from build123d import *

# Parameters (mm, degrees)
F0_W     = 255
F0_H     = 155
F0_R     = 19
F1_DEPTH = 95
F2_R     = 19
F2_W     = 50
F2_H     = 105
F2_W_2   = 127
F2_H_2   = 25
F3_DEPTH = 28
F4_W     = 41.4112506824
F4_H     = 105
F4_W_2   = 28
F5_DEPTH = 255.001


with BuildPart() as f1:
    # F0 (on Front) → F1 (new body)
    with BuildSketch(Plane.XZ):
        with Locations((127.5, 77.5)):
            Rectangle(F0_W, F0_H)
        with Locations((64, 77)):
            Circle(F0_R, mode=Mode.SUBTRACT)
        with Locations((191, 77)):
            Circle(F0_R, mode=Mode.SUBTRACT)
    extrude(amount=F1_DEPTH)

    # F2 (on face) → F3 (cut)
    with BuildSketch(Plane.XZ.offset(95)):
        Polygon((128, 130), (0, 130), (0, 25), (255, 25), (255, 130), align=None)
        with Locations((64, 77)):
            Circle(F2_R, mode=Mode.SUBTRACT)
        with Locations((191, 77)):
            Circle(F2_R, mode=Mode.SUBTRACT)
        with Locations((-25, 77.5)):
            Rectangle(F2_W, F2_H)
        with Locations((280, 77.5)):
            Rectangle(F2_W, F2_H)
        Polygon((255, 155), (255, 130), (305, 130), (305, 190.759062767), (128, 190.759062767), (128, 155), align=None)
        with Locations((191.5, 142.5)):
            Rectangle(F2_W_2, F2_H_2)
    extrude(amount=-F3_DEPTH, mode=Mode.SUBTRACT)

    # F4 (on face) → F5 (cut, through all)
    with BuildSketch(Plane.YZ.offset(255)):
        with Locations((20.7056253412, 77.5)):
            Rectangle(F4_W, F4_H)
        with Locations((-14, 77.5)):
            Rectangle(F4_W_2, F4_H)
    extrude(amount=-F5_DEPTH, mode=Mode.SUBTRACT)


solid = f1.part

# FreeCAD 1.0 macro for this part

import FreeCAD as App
import Part
import Sketcher

V = App.Vector

doc = App.newDocument("Part")
body = doc.addObject("PartDesign::Body", "Body")

# Sketch on XZ plane
sketch1 = body.newObject("Sketcher::SketchObject", "Sketch")
sketch1.AttachmentSupport = (doc.getObject("XZ_Plane"), [""])
sketch1.MapMode = "FlatFace"
sketch1.addGeometry(Part.LineSegment(V(0, 155, 0), V(0, 0, 0)), False)
sketch1.addGeometry(Part.LineSegment(V(0, 0, 0), V(255, 0, 0)), False)
sketch1.addGeometry(Part.LineSegment(V(255, 0, 0), V(255, 155, 0)), False)
sketch1.addGeometry(Part.LineSegment(V(255, 155, 0), V(0, 155, 0)), False)
sketch1.addGeometry(Part.Circle(V(64, 77, 0), V(0, 0, 1), 19), False)
sketch1.addGeometry(Part.Circle(V(191, 77, 0), V(0, 0, 1), 19), False)
sketch1.addConstraint(Sketcher.Constraint("Coincident", 0, 2, 1, 1))
sketch1.addConstraint(Sketcher.Constraint("Coincident", 1, 2, 2, 1))
sketch1.addConstraint(Sketcher.Constraint("Coincident", 2, 2, 3, 1))
sketch1.addConstraint(Sketcher.Constraint("Coincident", 3, 2, 0, 1))
sketch1.addConstraint(Sketcher.Constraint("Vertical", 0))
sketch1.addConstraint(Sketcher.Constraint("Horizontal", 1))
sketch1.addConstraint(Sketcher.Constraint("Vertical", 2))
sketch1.addConstraint(Sketcher.Constraint("Horizontal", 3))
sketch1.addConstraint(Sketcher.Constraint("Coincident", 0, 2, -1, 1))
sketch1.addConstraint(Sketcher.Constraint("Equal", 4, 5))
sketch1.addConstraint(Sketcher.Constraint("Horizontal", 4, 3, 5, 3))
sketch1.addConstraint(Sketcher.Constraint("Diameter", 4, 38.0))
sketch1.addConstraint(Sketcher.Constraint("DistanceX", 1, 1, 1, 2, 255.0))
sketch1.addConstraint(Sketcher.Constraint("DistanceY", 0, 2, 0, 1, 155.0))
sketch1.addConstraint(Sketcher.Constraint("DistanceX", -1, 1, 4, 3, 64.0))
sketch1.addConstraint(Sketcher.Constraint("DistanceY", -1, 1, 4, 3, 77.0))
sketch1.addConstraint(Sketcher.Constraint("DistanceX", -1, 1, 5, 3, 191.0))
pad1 = body.newObject("PartDesign::Pad", "Pad")
pad1.Profile = sketch1
pad1.Length = 95

# Sketch on XZ plane
sketch2 = body.newObject("Sketcher::SketchObject", "Sketch001")
sketch2.AttachmentSupport = (doc.getObject("XZ_Plane"), [""])
sketch2.MapMode = "FlatFace"
sketch2.AttachmentOffset = App.Placement(V(0, 0, 95), App.Rotation())
sketch2.addGeometry(Part.LineSegment(V(-50, 130, 0), V(-50, 25, 0)), False)
sketch2.addGeometry(Part.LineSegment(V(-50, 25, 0), V(305, 25, 0)), False)
sketch2.addGeometry(Part.LineSegment(V(305, 25, 0), V(305, 191, 0)), False)
sketch2.addGeometry(Part.LineSegment(V(305, 191, 0), V(128, 191, 0)), False)
sketch2.addGeometry(Part.LineSegment(V(128, 191, 0), V(128, 130, 0)), False)
sketch2.addGeometry(Part.LineSegment(V(128, 130, 0), V(-50, 130, 0)), False)
sketch2.addGeometry(Part.Circle(V(64, 77, 0), V(0, 0, 1), 19), False)
sketch2.addGeometry(Part.Circle(V(191, 77, 0), V(0, 0, 1), 19), False)
sketch2.addConstraint(Sketcher.Constraint("Coincident", 0, 2, 1, 1))
sketch2.addConstraint(Sketcher.Constraint("Coincident", 1, 2, 2, 1))
sketch2.addConstraint(Sketcher.Constraint("Coincident", 2, 2, 3, 1))
sketch2.addConstraint(Sketcher.Constraint("Coincident", 3, 2, 4, 1))
sketch2.addConstraint(Sketcher.Constraint("Coincident", 4, 2, 5, 1))
sketch2.addConstraint(Sketcher.Constraint("Coincident", 5, 2, 0, 1))
sketch2.addConstraint(Sketcher.Constraint("Vertical", 0))
sketch2.addConstraint(Sketcher.Constraint("Horizontal", 1))
sketch2.addConstraint(Sketcher.Constraint("Vertical", 2))
sketch2.addConstraint(Sketcher.Constraint("Horizontal", 3))
sketch2.addConstraint(Sketcher.Constraint("Vertical", 4))
sketch2.addConstraint(Sketcher.Constraint("Horizontal", 5))
sketch2.addConstraint(Sketcher.Constraint("Equal", 6, 7))
sketch2.addConstraint(Sketcher.Constraint("Horizontal", 6, 3, 7, 3))
sketch2.addConstraint(Sketcher.Constraint("Diameter", 6, 38.0))
sketch2.addConstraint(Sketcher.Constraint("DistanceX", 1, 1, 1, 2, 355.0))
sketch2.addConstraint(Sketcher.Constraint("DistanceX", 3, 2, 3, 1, 177.0))
sketch2.addConstraint(Sketcher.Constraint("DistanceY", 0, 2, 0, 1, 105.0))
sketch2.addConstraint(Sketcher.Constraint("DistanceX", -1, 1, 6, 3, 64.0))
sketch2.addConstraint(Sketcher.Constraint("DistanceY", -1, 1, 6, 3, 77.0))
sketch2.addConstraint(Sketcher.Constraint("DistanceX", -1, 1, 7, 3, 191.0))
sketch2.addConstraint(Sketcher.Constraint("DistanceX", 0, 2, -1, 1, 50.0))
sketch2.addConstraint(Sketcher.Constraint("DistanceY", -1, 1, 0, 2, 25.0))
sketch2.addConstraint(Sketcher.Constraint("DistanceY", 2, 1, 2, 2, 165.759063))
pocket1 = body.newObject("PartDesign::Pocket", "Pocket")
pocket1.Profile = sketch2
pocket1.Length = 28

# Sketch on YZ plane
sketch3 = body.newObject("Sketcher::SketchObject", "Sketch002")
sketch3.AttachmentSupport = (doc.getObject("YZ_Plane"), [""])
sketch3.MapMode = "FlatFace"
sketch3.AttachmentOffset = App.Placement(V(0, 0, 255), App.Rotation())
sketch3.addGeometry(Part.LineSegment(V(41, 25, 0), V(41, 130, 0)), False)
sketch3.addGeometry(Part.LineSegment(V(41, 130, 0), V(-28, 130, 0)), False)
sketch3.addGeometry(Part.LineSegment(V(-28, 130, 0), V(-28, 25, 0)), False)
sketch3.addGeometry(Part.LineSegment(V(-28, 25, 0), V(41, 25, 0)), False)
sketch3.addConstraint(Sketcher.Constraint("Coincident", 0, 2, 1, 1))
sketch3.addConstraint(Sketcher.Constraint("Coincident", 1, 2, 2, 1))
sketch3.addConstraint(Sketcher.Constraint("Coincident", 2, 2, 3, 1))
sketch3.addConstraint(Sketcher.Constraint("Coincident", 3, 2, 0, 1))
sketch3.addConstraint(Sketcher.Constraint("Vertical", 0))
sketch3.addConstraint(Sketcher.Constraint("Horizontal", 1))
sketch3.addConstraint(Sketcher.Constraint("Vertical", 2))
sketch3.addConstraint(Sketcher.Constraint("Horizontal", 3))
sketch3.addConstraint(Sketcher.Constraint("DistanceY", 0, 1, 0, 2, 105.0))
sketch3.addConstraint(Sketcher.Constraint("DistanceY", -1, 1, 0, 2, 130.0))
sketch3.addConstraint(Sketcher.Constraint("DistanceX", 1, 2, -1, 1, 28.0))
sketch3.addConstraint(Sketcher.Constraint("DistanceX", 1, 2, 1, 1, 69.411251))
pocket2 = body.newObject("PartDesign::Pocket", "Pocket001")
pocket2.Profile = sketch3
pocket2.Type = "ThroughAll"

doc.recompute()
